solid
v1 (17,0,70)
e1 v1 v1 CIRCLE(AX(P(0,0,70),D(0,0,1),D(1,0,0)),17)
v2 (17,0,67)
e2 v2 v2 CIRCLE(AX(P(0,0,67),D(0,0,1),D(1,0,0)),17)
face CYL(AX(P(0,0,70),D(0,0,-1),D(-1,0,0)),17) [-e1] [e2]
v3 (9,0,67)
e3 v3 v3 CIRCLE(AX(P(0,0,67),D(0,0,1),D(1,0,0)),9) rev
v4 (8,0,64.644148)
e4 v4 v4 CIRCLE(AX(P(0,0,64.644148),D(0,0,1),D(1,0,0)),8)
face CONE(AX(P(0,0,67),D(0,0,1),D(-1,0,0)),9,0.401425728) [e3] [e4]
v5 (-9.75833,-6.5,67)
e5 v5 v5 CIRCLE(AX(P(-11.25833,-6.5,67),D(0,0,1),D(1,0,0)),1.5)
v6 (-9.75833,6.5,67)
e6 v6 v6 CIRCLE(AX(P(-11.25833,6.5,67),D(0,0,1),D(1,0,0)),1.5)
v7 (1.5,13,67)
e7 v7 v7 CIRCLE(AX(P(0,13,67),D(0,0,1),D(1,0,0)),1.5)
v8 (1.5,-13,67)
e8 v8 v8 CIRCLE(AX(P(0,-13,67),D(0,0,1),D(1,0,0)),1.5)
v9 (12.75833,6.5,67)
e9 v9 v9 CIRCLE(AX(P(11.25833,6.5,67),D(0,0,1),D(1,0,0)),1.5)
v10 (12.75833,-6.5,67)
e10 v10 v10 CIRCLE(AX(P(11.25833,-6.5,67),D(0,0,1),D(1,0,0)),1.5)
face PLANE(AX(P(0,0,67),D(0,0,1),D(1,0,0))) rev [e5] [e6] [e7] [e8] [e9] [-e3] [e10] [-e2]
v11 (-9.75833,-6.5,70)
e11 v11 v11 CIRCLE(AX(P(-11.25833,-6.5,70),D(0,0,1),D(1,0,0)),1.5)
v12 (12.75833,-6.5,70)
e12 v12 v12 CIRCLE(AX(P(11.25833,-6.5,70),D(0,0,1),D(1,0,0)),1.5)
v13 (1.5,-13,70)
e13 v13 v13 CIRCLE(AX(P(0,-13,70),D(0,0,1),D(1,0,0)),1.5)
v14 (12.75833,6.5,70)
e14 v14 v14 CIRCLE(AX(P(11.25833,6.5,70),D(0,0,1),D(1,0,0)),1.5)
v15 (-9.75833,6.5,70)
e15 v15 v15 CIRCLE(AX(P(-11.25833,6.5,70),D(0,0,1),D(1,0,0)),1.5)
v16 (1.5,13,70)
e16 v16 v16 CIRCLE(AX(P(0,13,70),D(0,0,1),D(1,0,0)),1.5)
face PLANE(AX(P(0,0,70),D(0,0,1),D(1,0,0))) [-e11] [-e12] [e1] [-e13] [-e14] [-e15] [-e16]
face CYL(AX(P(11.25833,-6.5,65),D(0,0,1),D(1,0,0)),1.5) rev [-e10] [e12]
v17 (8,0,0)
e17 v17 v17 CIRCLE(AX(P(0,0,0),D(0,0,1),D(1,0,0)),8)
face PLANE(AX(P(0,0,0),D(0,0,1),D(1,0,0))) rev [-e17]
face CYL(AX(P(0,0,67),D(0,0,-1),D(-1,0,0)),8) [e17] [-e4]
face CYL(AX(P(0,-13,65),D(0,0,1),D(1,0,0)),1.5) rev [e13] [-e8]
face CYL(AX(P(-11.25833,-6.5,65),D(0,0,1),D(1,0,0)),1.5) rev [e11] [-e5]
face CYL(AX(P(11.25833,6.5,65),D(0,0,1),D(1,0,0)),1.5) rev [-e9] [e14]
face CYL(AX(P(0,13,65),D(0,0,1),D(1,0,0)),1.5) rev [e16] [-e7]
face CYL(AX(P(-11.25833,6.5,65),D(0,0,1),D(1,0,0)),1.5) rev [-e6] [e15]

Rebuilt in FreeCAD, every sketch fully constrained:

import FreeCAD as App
import Part
import Sketcher

V = App.Vector
Q = App.Units.Quantity

doc = App.newDocument("Part")
body = doc.addObject("PartDesign::Body", "Body")

# Sketch on XY plane
sketch1 = body.newObject("Sketcher::SketchObject", "Sketch")
sketch1.AttachmentSupport = (doc.getObject("XY_Plane"), [""])
sketch1.MapMode = "FlatFace"
sketch1.addGeometry(Part.Circle(V(0, 0, 0), V(0, 0, 1), 8), False)
sketch1.addConstraint(Sketcher.Constraint("Coincident", 0, 3, -1, 1))
sketch1.addConstraint(Sketcher.Constraint("Diameter", 0, Q("16 mm")))
pad1 = body.newObject("PartDesign::Pad", "Pad")
pad1.Profile = sketch1
pad1.Length = 67

# Sketch on XY plane
sketch2 = body.newObject("Sketcher::SketchObject", "Sketch001")
sketch2.AttachmentSupport = (doc.getObject("XY_Plane"), [""])
sketch2.MapMode = "FlatFace"
sketch2.AttachmentOffset = App.Placement(V(0, 0, 67), App.Rotation())
sketch2.addGeometry(Part.Circle(V(0, 0, 0), V(0, 0, 1), 17), False)
sketch2.addConstraint(Sketcher.Constraint("Coincident", 0, 3, -1, 1))
sketch2.addConstraint(Sketcher.Constraint("Diameter", 0, Q("34 mm")))
pad2 = body.newObject("PartDesign::Pad", "Pad001")
pad2.Profile = sketch2
pad2.Length = 3

# Sketch on XY plane
sketch3 = body.newObject("Sketcher::SketchObject", "Sketch002")
sketch3.AttachmentSupport = (doc.getObject("XY_Plane"), [""])
sketch3.MapMode = "FlatFace"
sketch3.AttachmentOffset = App.Placement(V(0, 0, 67), App.Rotation())
sketch3.addGeometry(Part.Circle(V(0, 0, 0), V(0, 0, 1), 9), False)
sketch3.addConstraint(Sketcher.Constraint("Coincident", 0, 3, -1, 1))
sketch3.addConstraint(Sketcher.Constraint("Diameter", 0, Q("18 mm")))
pad3 = body.newObject("PartDesign::Pad", "Pad002")
pad3.Profile = sketch3
pad3.Length = 5
pad3.Reversed = True
pad3.TaperAngle = -23

# Sketch on XY plane
sketch4 = body.newObject("Sketcher::SketchObject", "Sketch003")
sketch4.AttachmentSupport = (doc.getObject("XY_Plane"), [""])
sketch4.MapMode = "FlatFace"
sketch4.AttachmentOffset = App.Placement(V(0, 0, 70), App.Rotation())
sketch4.addGeometry(Part.Circle(V(0, 13, 0), V(0, 0, 1), 1.5), False)
sketch4.addGeometry(Part.Circle(V(11.3, 6.5, 0), V(0, 0, 1), 1.5), False)
sketch4.addGeometry(Part.Circle(V(11.3, -6.5, 0), V(0, 0, 1), 1.5), False)
sketch4.addGeometry(Part.Circle(V(0, -13, 0), V(0, 0, 1), 1.5), False)
sketch4.addGeometry(Part.Circle(V(-11.3, -6.5, 0), V(0, 0, 1), 1.5), False)
sketch4.addGeometry(Part.Circle(V(-11.3, 6.5, 0), V(0, 0, 1), 1.5), False)
sketch4.addConstraint(Sketcher.Constraint("Equal", 0, 1))
sketch4.addConstraint(Sketcher.Constraint("Equal", 1, 2))
sketch4.addConstraint(Sketcher.Constraint("Equal", 2, 3))
sketch4.addConstraint(Sketcher.Constraint("Equal", 3, 4))
sketch4.addConstraint(Sketcher.Constraint("Equal", 4, 5))
sketch4.addConstraint(Sketcher.Constraint("Symmetric", 0, 3, 3, 3, -1, 1))
sketch4.addConstraint(Sketcher.Constraint("Symmetric", 1, 3, 4, 3, -1, 1))
sketch4.addConstraint(Sketcher.Constraint("Symmetric", 2, 3, 5, 3, -1, 1))
sketch4.addConstraint(Sketcher.Constraint("Symmetric", 2, 3, 4, 3, -2))
sketch4.addConstraint(Sketcher.Constraint("PointOnObject", 0, 3, -2))
sketch4.addConstraint(Sketcher.Constraint("Diameter", 0, Q("3 mm")))
sketch4.addConstraint(Sketcher.Constraint("DistanceY", -1, 1, 0, 3, Q("13 mm")))
sketch4.addConstraint(Sketcher.Constraint("DistanceY", 2, 3, 1, 3, Q("13 mm")))
sketch4.addConstraint(Sketcher.Constraint("DistanceX", -1, 1, 1, 3, Q("11.25833 mm")))
pocket1 = body.newObject("PartDesign::Pocket", "Pocket")
pocket1.Profile = sketch4
pocket1.Length = 5

doc.recompute()
